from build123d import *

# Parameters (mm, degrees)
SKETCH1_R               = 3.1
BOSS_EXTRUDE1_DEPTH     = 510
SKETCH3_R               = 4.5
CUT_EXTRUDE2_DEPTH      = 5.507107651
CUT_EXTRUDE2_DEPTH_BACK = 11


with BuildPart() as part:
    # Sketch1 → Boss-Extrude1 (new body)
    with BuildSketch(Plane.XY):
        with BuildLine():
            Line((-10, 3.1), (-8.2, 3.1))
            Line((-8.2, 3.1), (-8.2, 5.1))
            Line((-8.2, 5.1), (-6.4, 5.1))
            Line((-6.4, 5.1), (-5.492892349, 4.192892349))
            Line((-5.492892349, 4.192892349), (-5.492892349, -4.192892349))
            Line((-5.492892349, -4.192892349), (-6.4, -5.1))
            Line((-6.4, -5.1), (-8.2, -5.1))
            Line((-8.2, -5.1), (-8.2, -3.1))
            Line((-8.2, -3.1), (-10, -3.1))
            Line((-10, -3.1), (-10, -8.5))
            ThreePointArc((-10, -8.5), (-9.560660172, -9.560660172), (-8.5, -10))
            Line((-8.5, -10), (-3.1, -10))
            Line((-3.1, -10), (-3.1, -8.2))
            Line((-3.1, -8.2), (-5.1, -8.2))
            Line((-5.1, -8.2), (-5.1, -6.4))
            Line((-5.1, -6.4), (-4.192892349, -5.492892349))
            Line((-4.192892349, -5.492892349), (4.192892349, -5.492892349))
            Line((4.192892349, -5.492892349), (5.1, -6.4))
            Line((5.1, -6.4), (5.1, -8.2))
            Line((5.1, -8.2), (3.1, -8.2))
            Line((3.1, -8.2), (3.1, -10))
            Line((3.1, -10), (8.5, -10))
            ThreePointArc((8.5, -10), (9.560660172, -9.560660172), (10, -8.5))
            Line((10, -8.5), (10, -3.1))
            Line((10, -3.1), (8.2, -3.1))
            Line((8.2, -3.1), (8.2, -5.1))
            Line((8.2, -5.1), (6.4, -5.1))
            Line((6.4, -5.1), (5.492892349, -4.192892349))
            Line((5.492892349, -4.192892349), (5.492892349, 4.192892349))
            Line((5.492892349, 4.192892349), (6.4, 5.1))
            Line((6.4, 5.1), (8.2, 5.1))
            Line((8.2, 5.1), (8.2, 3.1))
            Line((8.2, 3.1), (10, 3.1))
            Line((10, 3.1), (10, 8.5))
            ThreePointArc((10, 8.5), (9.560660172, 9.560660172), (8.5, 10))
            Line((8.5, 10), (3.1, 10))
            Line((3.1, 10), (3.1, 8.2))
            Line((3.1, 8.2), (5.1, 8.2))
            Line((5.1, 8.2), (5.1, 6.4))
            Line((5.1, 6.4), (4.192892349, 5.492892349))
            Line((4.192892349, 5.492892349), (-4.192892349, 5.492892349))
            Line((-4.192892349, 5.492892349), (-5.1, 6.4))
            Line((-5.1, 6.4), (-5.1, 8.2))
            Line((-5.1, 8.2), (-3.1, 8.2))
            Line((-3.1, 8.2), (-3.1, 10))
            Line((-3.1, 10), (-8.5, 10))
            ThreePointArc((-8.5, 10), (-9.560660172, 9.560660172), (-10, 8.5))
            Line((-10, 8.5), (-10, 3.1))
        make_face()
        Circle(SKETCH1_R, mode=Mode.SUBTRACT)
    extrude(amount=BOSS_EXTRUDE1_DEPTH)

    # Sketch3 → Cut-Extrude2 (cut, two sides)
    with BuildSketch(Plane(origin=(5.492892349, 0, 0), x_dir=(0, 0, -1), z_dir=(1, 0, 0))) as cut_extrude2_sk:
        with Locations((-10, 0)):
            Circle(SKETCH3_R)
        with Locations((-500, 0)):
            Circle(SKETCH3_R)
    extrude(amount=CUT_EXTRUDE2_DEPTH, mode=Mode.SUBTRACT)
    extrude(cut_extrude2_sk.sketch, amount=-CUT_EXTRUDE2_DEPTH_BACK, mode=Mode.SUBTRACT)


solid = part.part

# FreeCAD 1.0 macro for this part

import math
import FreeCAD as App
import Part
import Sketcher
from FreeCAD import Vector
Q = App.Units.Quantity

doc = App.newDocument("Part")
body = doc.addObject("PartDesign::Body", "Body")

# Sketch on XY plane
sketch1 = doc.addObject("Sketcher::SketchObject", "Sketch")
body.addObject(sketch1)
sketch1.AttachmentSupport = (doc.XY_Plane, [""])
sketch1.MapMode = "FlatFace"
sketch1.addGeometry(Part.LineSegment(Vector(-10, 3.1, 0), Vector(-8.2, 3.1, 0)), False)
sketch1.addGeometry(Part.LineSegment(Vector(-8.2, 3.1, 0), Vector(-8.2, 5.1, 0)), False)
sketch1.addGeometry(Part.LineSegment(Vector(-8.2, 5.1, 0), Vector(-6.4, 5.1, 0)), False)
sketch1.addGeometry(Part.LineSegment(Vector(-6.4, 5.1, 0), Vector(-5.5, 4.2, 0)), False)
sketch1.addGeometry(Part.LineSegment(Vector(-5.5, 4.2, 0), Vector(-5.5, -4.2, 0)), False)
sketch1.addGeometry(Part.LineSegment(Vector(-5.5, -4.2, 0), Vector(-6.4, -5.1, 0)), False)
sketch1.addGeometry(Part.LineSegment(Vector(-6.4, -5.1, 0), Vector(-8.2, -5.1, 0)), False)
sketch1.addGeometry(Part.LineSegment(Vector(-8.2, -5.1, 0), Vector(-8.2, -3.1, 0)), False)
sketch1.addGeometry(Part.LineSegment(Vector(-8.2, -3.1, 0), Vector(-10, -3.1, 0)), False)
sketch1.addGeometry(Part.LineSegment(Vector(-10, -3.1, 0), Vector(-10, -8.5, 0)), False)
sketch1.addGeometry(Part.ArcOfCircle(Part.Circle(Vector(-8.5, -8.5, 0), Vector(0, 0, 1), 1.5), math.radians(180), math.radians(270)), False)
sketch1.addGeometry(Part.LineSegment(Vector(-8.5, -10, 0), Vector(-3.1, -10, 0)), False)
sketch1.addGeometry(Part.LineSegment(Vector(-3.1, -10, 0), Vector(-3.1, -8.2, 0)), False)
sketch1.addGeometry(Part.LineSegment(Vector(-3.1, -8.2, 0), Vector(-5.1, -8.2, 0)), False)
sketch1.addGeometry(Part.LineSegment(Vector(-5.1, -8.2, 0), Vector(-5.1, -6.4, 0)), False)
sketch1.addGeometry(Part.LineSegment(Vector(-5.1, -6.4, 0), Vector(-4.2, -5.5, 0)), False)
sketch1.addGeometry(Part.LineSegment(Vector(-4.2, -5.5, 0), Vector(4.2, -5.5, 0)), False)
sketch1.addGeometry(Part.LineSegment(Vector(4.2, -5.5, 0), Vector(5.1, -6.4, 0)), False)
sketch1.addGeometry(Part.LineSegment(Vector(5.1, -6.4, 0), Vector(5.1, -8.2, 0)), False)
sketch1.addGeometry(Part.LineSegment(Vector(5.1, -8.2, 0), Vector(3.1, -8.2, 0)), False)
sketch1.addGeometry(Part.LineSegment(Vector(3.1, -8.2, 0), Vector(3.1, -10, 0)), False)
sketch1.addGeometry(Part.LineSegment(Vector(3.1, -10, 0), Vector(8.5, -10, 0)), False)
sketch1.addGeometry(Part.ArcOfCircle(Part.Circle(Vector(8.5, -8.5, 0), Vector(0, 0, 1), 1.5), math.radians(-90), math.radians(0)), False)
sketch1.addGeometry(Part.LineSegment(Vector(10, -8.5, 0), Vector(10, -3.1, 0)), False)
sketch1.addGeometry(Part.LineSegment(Vector(10, -3.1, 0), Vector(8.2, -3.1, 0)), False)
sketch1.addGeometry(Part.LineSegment(Vector(8.2, -3.1, 0), Vector(8.2, -5.1, 0)), False)
sketch1.addGeometry(Part.LineSegment(Vector(8.2, -5.1, 0), Vector(6.4, -5.1, 0)), False)
sketch1.addGeometry(Part.LineSegment(Vector(6.4, -5.1, 0), Vector(5.5, -4.2, 0)), False)
sketch1.addGeometry(Part.LineSegment(Vector(5.5, -4.2, 0), Vector(5.5, 4.2, 0)), False)
sketch1.addGeometry(Part.LineSegment(Vector(5.5, 4.2, 0), Vector(6.4, 5.1, 0)), False)
sketch1.addGeometry(Part.LineSegment(Vector(6.4, 5.1, 0), Vector(8.2, 5.1, 0)), False)
sketch1.addGeometry(Part.LineSegment(Vector(8.2, 5.1, 0), Vector(8.2, 3.1, 0)), False)
sketch1.addGeometry(Part.LineSegment(Vector(8.2, 3.1, 0), Vector(10, 3.1, 0)), False)
sketch1.addGeometry(Part.LineSegment(Vector(10, 3.1, 0), Vector(10, 8.5, 0)), False)
sketch1.addGeometry(Part.ArcOfCircle(Part.Circle(Vector(8.5, 8.5, 0), Vector(0, 0, 1), 1.5), math.radians(0), math.radians(90)), False)
sketch1.addGeometry(Part.LineSegment(Vector(8.5, 10, 0), Vector(3.1, 10, 0)), False)
sketch1.addGeometry(Part.LineSegment(Vector(3.1, 10, 0), Vector(3.1, 8.2, 0)), False)
sketch1.addGeometry(Part.LineSegment(Vector(3.1, 8.2, 0), Vector(5.1, 8.2, 0)), False)
sketch1.addGeometry(Part.LineSegment(Vector(5.1, 8.2, 0), Vector(5.1, 6.4, 0)), False)
sketch1.addGeometry(Part.LineSegment(Vector(5.1, 6.4, 0), Vector(4.2, 5.5, 0)), False)
sketch1.addGeometry(Part.LineSegment(Vector(4.2, 5.5, 0), Vector(-4.2, 5.5, 0)), False)
sketch1.addGeometry(Part.LineSegment(Vector(-4.2, 5.5, 0), Vector(-5.1, 6.4, 0)), False)
sketch1.addGeometry(Part.LineSegment(Vector(-5.1, 6.4, 0), Vector(-5.1, 8.2, 0)), False)
sketch1.addGeometry(Part.LineSegment(Vector(-5.1, 8.2, 0), Vector(-3.1, 8.2, 0)), False)
sketch1.addGeometry(Part.LineSegment(Vector(-3.1, 8.2, 0), Vector(-3.1, 10, 0)), False)
sketch1.addGeometry(Part.LineSegment(Vector(-3.1, 10, 0), Vector(-8.5, 10, 0)), False)
sketch1.addGeometry(Part.ArcOfCircle(Part.Circle(Vector(-8.5, 8.5, 0), Vector(0, 0, 1), 1.5), math.radians(90), math.radians(180)), False)
sketch1.addGeometry(Part.LineSegment(Vector(-10, 8.5, 0), Vector(-10, 3.1, 0)), False)
sketch1.addGeometry(Part.Circle(Vector(0, 0, 0), Vector(0, 0, 1), 3.1), False)
sketch1.addConstraint(Sketcher.Constraint("Coincident", 0, 2, 1, 1))
sketch1.addConstraint(Sketcher.Constraint("Coincident", 1, 2, 2, 1))
sketch1.addConstraint(Sketcher.Constraint("Coincident", 2, 2, 3, 1))
sketch1.addConstraint(Sketcher.Constraint("Coincident", 3, 2, 4, 1))
sketch1.addConstraint(Sketcher.Constraint("Coincident", 4, 2, 5, 1))
sketch1.addConstraint(Sketcher.Constraint("Coincident", 5, 2, 6, 1))
sketch1.addConstraint(Sketcher.Constraint("Coincident", 6, 2, 7, 1))
sketch1.addConstraint(Sketcher.Constraint("Coincident", 7, 2, 8, 1))
sketch1.addConstraint(Sketcher.Constraint("Coincident", 8, 2, 9, 1))
sketch1.addConstraint(Sketcher.Constraint("Tangent", 9, 2, 10, 1))
sketch1.addConstraint(Sketcher.Constraint("Tangent", 10, 2, 11, 1))
sketch1.addConstraint(Sketcher.Constraint("Coincident", 11, 2, 12, 1))
sketch1.addConstraint(Sketcher.Constraint("Coincident", 12, 2, 13, 1))
sketch1.addConstraint(Sketcher.Constraint("Coincident", 13, 2, 14, 1))
sketch1.addConstraint(Sketcher.Constraint("Coincident", 14, 2, 15, 1))
sketch1.addConstraint(Sketcher.Constraint("Coincident", 15, 2, 16, 1))
sketch1.addConstraint(Sketcher.Constraint("Coincident", 16, 2, 17, 1))
sketch1.addConstraint(Sketcher.Constraint("Coincident", 17, 2, 18, 1))
sketch1.addConstraint(Sketcher.Constraint("Coincident", 18, 2, 19, 1))
sketch1.addConstraint(Sketcher.Constraint("Coincident", 19, 2, 20, 1))
sketch1.addConstraint(Sketcher.Constraint("Coincident", 20, 2, 21, 1))
sketch1.addConstraint(Sketcher.Constraint("Tangent", 21, 2, 22, 1))
sketch1.addConstraint(Sketcher.Constraint("Tangent", 22, 2, 23, 1))
sketch1.addConstraint(Sketcher.Constraint("Coincident", 23, 2, 24, 1))
sketch1.addConstraint(Sketcher.Constraint("Coincident", 24, 2, 25, 1))
sketch1.addConstraint(Sketcher.Constraint("Coincident", 25, 2, 26, 1))
sketch1.addConstraint(Sketcher.Constraint("Coincident", 26, 2, 27, 1))
sketch1.addConstraint(Sketcher.Constraint("Coincident", 27, 2, 28, 1))
sketch1.addConstraint(Sketcher.Constraint("Coincident", 28, 2, 29, 1))
sketch1.addConstraint(Sketcher.Constraint("Coincident", 29, 2, 30, 1))
sketch1.addConstraint(Sketcher.Constraint("Coincident", 30, 2, 31, 1))
sketch1.addConstraint(Sketcher.Constraint("Coincident", 31, 2, 32, 1))
sketch1.addConstraint(Sketcher.Constraint("Coincident", 32, 2, 33, 1))
sketch1.addConstraint(Sketcher.Constraint("Tangent", 33, 2, 34, 1))
sketch1.addConstraint(Sketcher.Constraint("Tangent", 34, 2, 35, 1))
sketch1.addConstraint(Sketcher.Constraint("Coincident", 35, 2, 36, 1))
sketch1.addConstraint(Sketcher.Constraint("Coincident", 36, 2, 37, 1))
sketch1.addConstraint(Sketcher.Constraint("Coincident", 37, 2, 38, 1))
sketch1.addConstraint(Sketcher.Constraint("Coincident", 38, 2, 39, 1))
sketch1.addConstraint(Sketcher.Constraint("Coincident", 39, 2, 40, 1))
sketch1.addConstraint(Sketcher.Constraint("Coincident", 40, 2, 41, 1))
sketch1.addConstraint(Sketcher.Constraint("Coincident", 41, 2, 42, 1))
sketch1.addConstraint(Sketcher.Constraint("Coincident", 42, 2, 43, 1))
sketch1.addConstraint(Sketcher.Constraint("Coincident", 43, 2, 44, 1))
sketch1.addConstraint(Sketcher.Constraint("Coincident", 44, 2, 45, 1))
sketch1.addConstraint(Sketcher.Constraint("Tangent", 45, 2, 46, 1))
sketch1.addConstraint(Sketcher.Constraint("Tangent", 46, 2, 47, 1))
sketch1.addConstraint(Sketcher.Constraint("Coincident", 47, 2, 0, 1))
sketch1.addConstraint(Sketcher.Constraint("Horizontal", 0))
sketch1.addConstraint(Sketcher.Constraint("Vertical", 1))
sketch1.addConstraint(Sketcher.Constraint("Horizontal", 2))
sketch1.addConstraint(Sketcher.Constraint("Vertical", 4))
sketch1.addConstraint(Sketcher.Constraint("Horizontal", 6))
sketch1.addConstraint(Sketcher.Constraint("Vertical", 7))
sketch1.addConstraint(Sketcher.Constraint("Horizontal", 8))
sketch1.addConstraint(Sketcher.Constraint("Vertical", 9))
sketch1.addConstraint(Sketcher.Constraint("Horizontal", 11))
sketch1.addConstraint(Sketcher.Constraint("Vertical", 12))
sketch1.addConstraint(Sketcher.Constraint("Horizontal", 13))
sketch1.addConstraint(Sketcher.Constraint("Vertical", 14))
sketch1.addConstraint(Sketcher.Constraint("Horizontal", 16))
sketch1.addConstraint(Sketcher.Constraint("Vertical", 18))
sketch1.addConstraint(Sketcher.Constraint("Horizontal", 19))
sketch1.addConstraint(Sketcher.Constraint("Vertical", 20))
sketch1.addConstraint(Sketcher.Constraint("Horizontal", 21))
sketch1.addConstraint(Sketcher.Constraint("Vertical", 23))
sketch1.addConstraint(Sketcher.Constraint("Horizontal", 24))
sketch1.addConstraint(Sketcher.Constraint("Vertical", 25))
sketch1.addConstraint(Sketcher.Constraint("Horizontal", 26))
sketch1.addConstraint(Sketcher.Constraint("Vertical", 28))
sketch1.addConstraint(Sketcher.Constraint("Horizontal", 30))
sketch1.addConstraint(Sketcher.Constraint("Vertical", 31))
sketch1.addConstraint(Sketcher.Constraint("Horizontal", 32))
sketch1.addConstraint(Sketcher.Constraint("Vertical", 33))
sketch1.addConstraint(Sketcher.Constraint("Horizontal", 35))
sketch1.addConstraint(Sketcher.Constraint("Vertical", 36))
sketch1.addConstraint(Sketcher.Constraint("Horizontal", 37))
sketch1.addConstraint(Sketcher.Constraint("Vertical", 38))
sketch1.addConstraint(Sketcher.Constraint("Horizontal", 40))
sketch1.addConstraint(Sketcher.Constraint("Vertical", 42))
sketch1.addConstraint(Sketcher.Constraint("Horizontal", 43))
sketch1.addConstraint(Sketcher.Constraint("Vertical", 44))
sketch1.addConstraint(Sketcher.Constraint("Horizontal", 45))
sketch1.addConstraint(Sketcher.Constraint("Vertical", 47))
sketch1.addConstraint(Sketcher.Constraint("Coincident", 48, 3, -1, 1))
sketch1.addConstraint(Sketcher.Constraint("Equal", 10, 22))
sketch1.addConstraint(Sketcher.Constraint("Equal", 22, 34))
sketch1.addConstraint(Sketcher.Constraint("Equal", 34, 46))
sketch1.addConstraint(Sketcher.Constraint("Symmetric", 10, 3, 34, 3, -1, 1))
sketch1.addConstraint(Sketcher.Constraint("Symmetric", 22, 3, 46, 3, -1, 1))
sketch1.addConstraint(Sketcher.Constraint("Symmetric", 0, 2, 24, 2, -1, 1))
sketch1.addConstraint(Sketcher.Constraint("Symmetric", 2, 2, 26, 2, -1, 1))
sketch1.addConstraint(Sketcher.Constraint("Symmetric", 3, 2, 27, 2, -1, 1))
sketch1.addConstraint(Sketcher.Constraint("Symmetric", 5, 2, 29, 2, -1, 1))
sketch1.addConstraint(Sketcher.Constraint("Symmetric", 7, 2, 31, 2, -1, 1))
sketch1.addConstraint(Sketcher.Constraint("Symmetric", 12, 2, 36, 2, -1, 1))
sketch1.addConstraint(Sketcher.Constraint("Symmetric", 14, 2, 38, 2, -1, 1))
sketch1.addConstraint(Sketcher.Constraint("Symmetric", 15, 2, 39, 2, -1, 1))
sketch1.addConstraint(Sketcher.Constraint("Symmetric", 17, 2, 41, 2, -1, 1))
sketch1.addConstraint(Sketcher.Constraint("Symmetric", 19, 2, 43, 2, -1, 1))
sketch1.addConstraint(Sketcher.Constraint("Symmetric", 10, 3, 22, 3, -2))
sketch1.addConstraint(Sketcher.Constraint("Symmetric", 14, 2, 17, 2, -2))
sketch1.addConstraint(Sketcher.Constraint("Symmetric", 12, 2, 19, 2, -2))
sketch1.addConstraint(Sketcher.Constraint("Symmetric", 7, 2, 24, 2, -2))
sketch1.addConstraint(Sketcher.Constraint("Symmetric", 5, 2, 26, 2, -2))
sketch1.addConstraint(Sketcher.Constraint("Perpendicular", 3, 5))
sketch1.addConstraint(Sketcher.Constraint("Parallel", 5, 15))
sketch1.addConstraint(Sketcher.Constraint("Perpendicular", 15, 17))
sketch1.addConstraint(Sketcher.Constraint("Perpendicular", 27, 29))
sketch1.addConstraint(Sketcher.Constraint("Perpendicular", 39, 41))
sketch1.addConstraint(Sketcher.Constraint("Horizontal", 4, 2, 27, 2))
sketch1.addConstraint(Sketcher.Constraint("Equal", 0, 2))
sketch1.addConstraint(Sketcher.Constraint("Equal", 43, 1))
sketch1.addConstraint(Sketcher.Constraint("Equal", 40, 4))
sketch1.addConstraint(Sketcher.Constraint("Equal", 45, 9))
sketch1.addConstraint(Sketcher.Constraint("Equal", 32, 12))
sketch1.addConstraint(Sketcher.Constraint("Equal", 12, 14))
sketch1.addConstraint(Sketcher.Constraint("Equal", 5, 15))
sketch1.addConstraint(Sketcher.Constraint("Diameter", 48, Q("6.2 mm")))
sketch1.addConstraint(Sketcher.Constraint("Radius", 10, Q("1.5 mm")))
sketch1.addConstraint(Sketcher.Constraint("DistanceX", 13, 2, 13, 1, Q("2 mm")))
sketch1.addConstraint(Sketcher.Constraint("DistanceX", 0, 1, 0, 2, Q("1.8 mm")))
sketch1.addConstraint(Sketcher.Constraint("DistanceX", 11, 1, 11, 2, Q("5.4 mm")))
sketch1.addConstraint(Sketcher.Constraint("DistanceX", 8, 2, -1, 1, Q("10 mm")))
sketch1.addConstraint(Sketcher.Constraint("DistanceX", 16, 1, 16, 2, Q("8.385785 mm")))
pad1 = doc.addObject("PartDesign::Pad", "Pad")
body.addObject(pad1)
pad1.Profile = sketch1
pad1.Length = 510

# Sketch on YZ plane
sketch2 = doc.addObject("Sketcher::SketchObject", "Sketch001")
body.addObject(sketch2)
sketch2.AttachmentSupport = (doc.YZ_Plane, [""])
sketch2.MapMode = "FlatFace"
sketch2.AttachmentOffset = App.Placement(Vector(0, 0, 5.492892), App.Rotation())
sketch2.addGeometry(Part.Circle(Vector(0, 10, 0), Vector(0, 0, 1), 4.5), False)
sketch2.addGeometry(Part.Circle(Vector(0, 500, 0), Vector(0, 0, 1), 4.5), False)
sketch2.addConstraint(Sketcher.Constraint("Equal", 0, 1))
sketch2.addConstraint(Sketcher.Constraint("PointOnObject", 0, 3, -2))
sketch2.addConstraint(Sketcher.Constraint("PointOnObject", 1, 3, -2))
sketch2.addConstraint(Sketcher.Constraint("Diameter", 0, Q("9 mm")))
sketch2.addConstraint(Sketcher.Constraint("DistanceY", -1, 1, 0, 3, Q("10 mm")))
sketch2.addConstraint(Sketcher.Constraint("DistanceY", -1, 1, 1, 3, Q("500 mm")))
pocket1 = doc.addObject("PartDesign::Pocket", "Pocket")
body.addObject(pocket1)
pocket1.Profile = sketch2
pocket1.Type = "TwoLengths"
pocket1.Length = 5.507108
pocket1.Length2 = 11
pocket1.Reversed = True

doc.recompute()
